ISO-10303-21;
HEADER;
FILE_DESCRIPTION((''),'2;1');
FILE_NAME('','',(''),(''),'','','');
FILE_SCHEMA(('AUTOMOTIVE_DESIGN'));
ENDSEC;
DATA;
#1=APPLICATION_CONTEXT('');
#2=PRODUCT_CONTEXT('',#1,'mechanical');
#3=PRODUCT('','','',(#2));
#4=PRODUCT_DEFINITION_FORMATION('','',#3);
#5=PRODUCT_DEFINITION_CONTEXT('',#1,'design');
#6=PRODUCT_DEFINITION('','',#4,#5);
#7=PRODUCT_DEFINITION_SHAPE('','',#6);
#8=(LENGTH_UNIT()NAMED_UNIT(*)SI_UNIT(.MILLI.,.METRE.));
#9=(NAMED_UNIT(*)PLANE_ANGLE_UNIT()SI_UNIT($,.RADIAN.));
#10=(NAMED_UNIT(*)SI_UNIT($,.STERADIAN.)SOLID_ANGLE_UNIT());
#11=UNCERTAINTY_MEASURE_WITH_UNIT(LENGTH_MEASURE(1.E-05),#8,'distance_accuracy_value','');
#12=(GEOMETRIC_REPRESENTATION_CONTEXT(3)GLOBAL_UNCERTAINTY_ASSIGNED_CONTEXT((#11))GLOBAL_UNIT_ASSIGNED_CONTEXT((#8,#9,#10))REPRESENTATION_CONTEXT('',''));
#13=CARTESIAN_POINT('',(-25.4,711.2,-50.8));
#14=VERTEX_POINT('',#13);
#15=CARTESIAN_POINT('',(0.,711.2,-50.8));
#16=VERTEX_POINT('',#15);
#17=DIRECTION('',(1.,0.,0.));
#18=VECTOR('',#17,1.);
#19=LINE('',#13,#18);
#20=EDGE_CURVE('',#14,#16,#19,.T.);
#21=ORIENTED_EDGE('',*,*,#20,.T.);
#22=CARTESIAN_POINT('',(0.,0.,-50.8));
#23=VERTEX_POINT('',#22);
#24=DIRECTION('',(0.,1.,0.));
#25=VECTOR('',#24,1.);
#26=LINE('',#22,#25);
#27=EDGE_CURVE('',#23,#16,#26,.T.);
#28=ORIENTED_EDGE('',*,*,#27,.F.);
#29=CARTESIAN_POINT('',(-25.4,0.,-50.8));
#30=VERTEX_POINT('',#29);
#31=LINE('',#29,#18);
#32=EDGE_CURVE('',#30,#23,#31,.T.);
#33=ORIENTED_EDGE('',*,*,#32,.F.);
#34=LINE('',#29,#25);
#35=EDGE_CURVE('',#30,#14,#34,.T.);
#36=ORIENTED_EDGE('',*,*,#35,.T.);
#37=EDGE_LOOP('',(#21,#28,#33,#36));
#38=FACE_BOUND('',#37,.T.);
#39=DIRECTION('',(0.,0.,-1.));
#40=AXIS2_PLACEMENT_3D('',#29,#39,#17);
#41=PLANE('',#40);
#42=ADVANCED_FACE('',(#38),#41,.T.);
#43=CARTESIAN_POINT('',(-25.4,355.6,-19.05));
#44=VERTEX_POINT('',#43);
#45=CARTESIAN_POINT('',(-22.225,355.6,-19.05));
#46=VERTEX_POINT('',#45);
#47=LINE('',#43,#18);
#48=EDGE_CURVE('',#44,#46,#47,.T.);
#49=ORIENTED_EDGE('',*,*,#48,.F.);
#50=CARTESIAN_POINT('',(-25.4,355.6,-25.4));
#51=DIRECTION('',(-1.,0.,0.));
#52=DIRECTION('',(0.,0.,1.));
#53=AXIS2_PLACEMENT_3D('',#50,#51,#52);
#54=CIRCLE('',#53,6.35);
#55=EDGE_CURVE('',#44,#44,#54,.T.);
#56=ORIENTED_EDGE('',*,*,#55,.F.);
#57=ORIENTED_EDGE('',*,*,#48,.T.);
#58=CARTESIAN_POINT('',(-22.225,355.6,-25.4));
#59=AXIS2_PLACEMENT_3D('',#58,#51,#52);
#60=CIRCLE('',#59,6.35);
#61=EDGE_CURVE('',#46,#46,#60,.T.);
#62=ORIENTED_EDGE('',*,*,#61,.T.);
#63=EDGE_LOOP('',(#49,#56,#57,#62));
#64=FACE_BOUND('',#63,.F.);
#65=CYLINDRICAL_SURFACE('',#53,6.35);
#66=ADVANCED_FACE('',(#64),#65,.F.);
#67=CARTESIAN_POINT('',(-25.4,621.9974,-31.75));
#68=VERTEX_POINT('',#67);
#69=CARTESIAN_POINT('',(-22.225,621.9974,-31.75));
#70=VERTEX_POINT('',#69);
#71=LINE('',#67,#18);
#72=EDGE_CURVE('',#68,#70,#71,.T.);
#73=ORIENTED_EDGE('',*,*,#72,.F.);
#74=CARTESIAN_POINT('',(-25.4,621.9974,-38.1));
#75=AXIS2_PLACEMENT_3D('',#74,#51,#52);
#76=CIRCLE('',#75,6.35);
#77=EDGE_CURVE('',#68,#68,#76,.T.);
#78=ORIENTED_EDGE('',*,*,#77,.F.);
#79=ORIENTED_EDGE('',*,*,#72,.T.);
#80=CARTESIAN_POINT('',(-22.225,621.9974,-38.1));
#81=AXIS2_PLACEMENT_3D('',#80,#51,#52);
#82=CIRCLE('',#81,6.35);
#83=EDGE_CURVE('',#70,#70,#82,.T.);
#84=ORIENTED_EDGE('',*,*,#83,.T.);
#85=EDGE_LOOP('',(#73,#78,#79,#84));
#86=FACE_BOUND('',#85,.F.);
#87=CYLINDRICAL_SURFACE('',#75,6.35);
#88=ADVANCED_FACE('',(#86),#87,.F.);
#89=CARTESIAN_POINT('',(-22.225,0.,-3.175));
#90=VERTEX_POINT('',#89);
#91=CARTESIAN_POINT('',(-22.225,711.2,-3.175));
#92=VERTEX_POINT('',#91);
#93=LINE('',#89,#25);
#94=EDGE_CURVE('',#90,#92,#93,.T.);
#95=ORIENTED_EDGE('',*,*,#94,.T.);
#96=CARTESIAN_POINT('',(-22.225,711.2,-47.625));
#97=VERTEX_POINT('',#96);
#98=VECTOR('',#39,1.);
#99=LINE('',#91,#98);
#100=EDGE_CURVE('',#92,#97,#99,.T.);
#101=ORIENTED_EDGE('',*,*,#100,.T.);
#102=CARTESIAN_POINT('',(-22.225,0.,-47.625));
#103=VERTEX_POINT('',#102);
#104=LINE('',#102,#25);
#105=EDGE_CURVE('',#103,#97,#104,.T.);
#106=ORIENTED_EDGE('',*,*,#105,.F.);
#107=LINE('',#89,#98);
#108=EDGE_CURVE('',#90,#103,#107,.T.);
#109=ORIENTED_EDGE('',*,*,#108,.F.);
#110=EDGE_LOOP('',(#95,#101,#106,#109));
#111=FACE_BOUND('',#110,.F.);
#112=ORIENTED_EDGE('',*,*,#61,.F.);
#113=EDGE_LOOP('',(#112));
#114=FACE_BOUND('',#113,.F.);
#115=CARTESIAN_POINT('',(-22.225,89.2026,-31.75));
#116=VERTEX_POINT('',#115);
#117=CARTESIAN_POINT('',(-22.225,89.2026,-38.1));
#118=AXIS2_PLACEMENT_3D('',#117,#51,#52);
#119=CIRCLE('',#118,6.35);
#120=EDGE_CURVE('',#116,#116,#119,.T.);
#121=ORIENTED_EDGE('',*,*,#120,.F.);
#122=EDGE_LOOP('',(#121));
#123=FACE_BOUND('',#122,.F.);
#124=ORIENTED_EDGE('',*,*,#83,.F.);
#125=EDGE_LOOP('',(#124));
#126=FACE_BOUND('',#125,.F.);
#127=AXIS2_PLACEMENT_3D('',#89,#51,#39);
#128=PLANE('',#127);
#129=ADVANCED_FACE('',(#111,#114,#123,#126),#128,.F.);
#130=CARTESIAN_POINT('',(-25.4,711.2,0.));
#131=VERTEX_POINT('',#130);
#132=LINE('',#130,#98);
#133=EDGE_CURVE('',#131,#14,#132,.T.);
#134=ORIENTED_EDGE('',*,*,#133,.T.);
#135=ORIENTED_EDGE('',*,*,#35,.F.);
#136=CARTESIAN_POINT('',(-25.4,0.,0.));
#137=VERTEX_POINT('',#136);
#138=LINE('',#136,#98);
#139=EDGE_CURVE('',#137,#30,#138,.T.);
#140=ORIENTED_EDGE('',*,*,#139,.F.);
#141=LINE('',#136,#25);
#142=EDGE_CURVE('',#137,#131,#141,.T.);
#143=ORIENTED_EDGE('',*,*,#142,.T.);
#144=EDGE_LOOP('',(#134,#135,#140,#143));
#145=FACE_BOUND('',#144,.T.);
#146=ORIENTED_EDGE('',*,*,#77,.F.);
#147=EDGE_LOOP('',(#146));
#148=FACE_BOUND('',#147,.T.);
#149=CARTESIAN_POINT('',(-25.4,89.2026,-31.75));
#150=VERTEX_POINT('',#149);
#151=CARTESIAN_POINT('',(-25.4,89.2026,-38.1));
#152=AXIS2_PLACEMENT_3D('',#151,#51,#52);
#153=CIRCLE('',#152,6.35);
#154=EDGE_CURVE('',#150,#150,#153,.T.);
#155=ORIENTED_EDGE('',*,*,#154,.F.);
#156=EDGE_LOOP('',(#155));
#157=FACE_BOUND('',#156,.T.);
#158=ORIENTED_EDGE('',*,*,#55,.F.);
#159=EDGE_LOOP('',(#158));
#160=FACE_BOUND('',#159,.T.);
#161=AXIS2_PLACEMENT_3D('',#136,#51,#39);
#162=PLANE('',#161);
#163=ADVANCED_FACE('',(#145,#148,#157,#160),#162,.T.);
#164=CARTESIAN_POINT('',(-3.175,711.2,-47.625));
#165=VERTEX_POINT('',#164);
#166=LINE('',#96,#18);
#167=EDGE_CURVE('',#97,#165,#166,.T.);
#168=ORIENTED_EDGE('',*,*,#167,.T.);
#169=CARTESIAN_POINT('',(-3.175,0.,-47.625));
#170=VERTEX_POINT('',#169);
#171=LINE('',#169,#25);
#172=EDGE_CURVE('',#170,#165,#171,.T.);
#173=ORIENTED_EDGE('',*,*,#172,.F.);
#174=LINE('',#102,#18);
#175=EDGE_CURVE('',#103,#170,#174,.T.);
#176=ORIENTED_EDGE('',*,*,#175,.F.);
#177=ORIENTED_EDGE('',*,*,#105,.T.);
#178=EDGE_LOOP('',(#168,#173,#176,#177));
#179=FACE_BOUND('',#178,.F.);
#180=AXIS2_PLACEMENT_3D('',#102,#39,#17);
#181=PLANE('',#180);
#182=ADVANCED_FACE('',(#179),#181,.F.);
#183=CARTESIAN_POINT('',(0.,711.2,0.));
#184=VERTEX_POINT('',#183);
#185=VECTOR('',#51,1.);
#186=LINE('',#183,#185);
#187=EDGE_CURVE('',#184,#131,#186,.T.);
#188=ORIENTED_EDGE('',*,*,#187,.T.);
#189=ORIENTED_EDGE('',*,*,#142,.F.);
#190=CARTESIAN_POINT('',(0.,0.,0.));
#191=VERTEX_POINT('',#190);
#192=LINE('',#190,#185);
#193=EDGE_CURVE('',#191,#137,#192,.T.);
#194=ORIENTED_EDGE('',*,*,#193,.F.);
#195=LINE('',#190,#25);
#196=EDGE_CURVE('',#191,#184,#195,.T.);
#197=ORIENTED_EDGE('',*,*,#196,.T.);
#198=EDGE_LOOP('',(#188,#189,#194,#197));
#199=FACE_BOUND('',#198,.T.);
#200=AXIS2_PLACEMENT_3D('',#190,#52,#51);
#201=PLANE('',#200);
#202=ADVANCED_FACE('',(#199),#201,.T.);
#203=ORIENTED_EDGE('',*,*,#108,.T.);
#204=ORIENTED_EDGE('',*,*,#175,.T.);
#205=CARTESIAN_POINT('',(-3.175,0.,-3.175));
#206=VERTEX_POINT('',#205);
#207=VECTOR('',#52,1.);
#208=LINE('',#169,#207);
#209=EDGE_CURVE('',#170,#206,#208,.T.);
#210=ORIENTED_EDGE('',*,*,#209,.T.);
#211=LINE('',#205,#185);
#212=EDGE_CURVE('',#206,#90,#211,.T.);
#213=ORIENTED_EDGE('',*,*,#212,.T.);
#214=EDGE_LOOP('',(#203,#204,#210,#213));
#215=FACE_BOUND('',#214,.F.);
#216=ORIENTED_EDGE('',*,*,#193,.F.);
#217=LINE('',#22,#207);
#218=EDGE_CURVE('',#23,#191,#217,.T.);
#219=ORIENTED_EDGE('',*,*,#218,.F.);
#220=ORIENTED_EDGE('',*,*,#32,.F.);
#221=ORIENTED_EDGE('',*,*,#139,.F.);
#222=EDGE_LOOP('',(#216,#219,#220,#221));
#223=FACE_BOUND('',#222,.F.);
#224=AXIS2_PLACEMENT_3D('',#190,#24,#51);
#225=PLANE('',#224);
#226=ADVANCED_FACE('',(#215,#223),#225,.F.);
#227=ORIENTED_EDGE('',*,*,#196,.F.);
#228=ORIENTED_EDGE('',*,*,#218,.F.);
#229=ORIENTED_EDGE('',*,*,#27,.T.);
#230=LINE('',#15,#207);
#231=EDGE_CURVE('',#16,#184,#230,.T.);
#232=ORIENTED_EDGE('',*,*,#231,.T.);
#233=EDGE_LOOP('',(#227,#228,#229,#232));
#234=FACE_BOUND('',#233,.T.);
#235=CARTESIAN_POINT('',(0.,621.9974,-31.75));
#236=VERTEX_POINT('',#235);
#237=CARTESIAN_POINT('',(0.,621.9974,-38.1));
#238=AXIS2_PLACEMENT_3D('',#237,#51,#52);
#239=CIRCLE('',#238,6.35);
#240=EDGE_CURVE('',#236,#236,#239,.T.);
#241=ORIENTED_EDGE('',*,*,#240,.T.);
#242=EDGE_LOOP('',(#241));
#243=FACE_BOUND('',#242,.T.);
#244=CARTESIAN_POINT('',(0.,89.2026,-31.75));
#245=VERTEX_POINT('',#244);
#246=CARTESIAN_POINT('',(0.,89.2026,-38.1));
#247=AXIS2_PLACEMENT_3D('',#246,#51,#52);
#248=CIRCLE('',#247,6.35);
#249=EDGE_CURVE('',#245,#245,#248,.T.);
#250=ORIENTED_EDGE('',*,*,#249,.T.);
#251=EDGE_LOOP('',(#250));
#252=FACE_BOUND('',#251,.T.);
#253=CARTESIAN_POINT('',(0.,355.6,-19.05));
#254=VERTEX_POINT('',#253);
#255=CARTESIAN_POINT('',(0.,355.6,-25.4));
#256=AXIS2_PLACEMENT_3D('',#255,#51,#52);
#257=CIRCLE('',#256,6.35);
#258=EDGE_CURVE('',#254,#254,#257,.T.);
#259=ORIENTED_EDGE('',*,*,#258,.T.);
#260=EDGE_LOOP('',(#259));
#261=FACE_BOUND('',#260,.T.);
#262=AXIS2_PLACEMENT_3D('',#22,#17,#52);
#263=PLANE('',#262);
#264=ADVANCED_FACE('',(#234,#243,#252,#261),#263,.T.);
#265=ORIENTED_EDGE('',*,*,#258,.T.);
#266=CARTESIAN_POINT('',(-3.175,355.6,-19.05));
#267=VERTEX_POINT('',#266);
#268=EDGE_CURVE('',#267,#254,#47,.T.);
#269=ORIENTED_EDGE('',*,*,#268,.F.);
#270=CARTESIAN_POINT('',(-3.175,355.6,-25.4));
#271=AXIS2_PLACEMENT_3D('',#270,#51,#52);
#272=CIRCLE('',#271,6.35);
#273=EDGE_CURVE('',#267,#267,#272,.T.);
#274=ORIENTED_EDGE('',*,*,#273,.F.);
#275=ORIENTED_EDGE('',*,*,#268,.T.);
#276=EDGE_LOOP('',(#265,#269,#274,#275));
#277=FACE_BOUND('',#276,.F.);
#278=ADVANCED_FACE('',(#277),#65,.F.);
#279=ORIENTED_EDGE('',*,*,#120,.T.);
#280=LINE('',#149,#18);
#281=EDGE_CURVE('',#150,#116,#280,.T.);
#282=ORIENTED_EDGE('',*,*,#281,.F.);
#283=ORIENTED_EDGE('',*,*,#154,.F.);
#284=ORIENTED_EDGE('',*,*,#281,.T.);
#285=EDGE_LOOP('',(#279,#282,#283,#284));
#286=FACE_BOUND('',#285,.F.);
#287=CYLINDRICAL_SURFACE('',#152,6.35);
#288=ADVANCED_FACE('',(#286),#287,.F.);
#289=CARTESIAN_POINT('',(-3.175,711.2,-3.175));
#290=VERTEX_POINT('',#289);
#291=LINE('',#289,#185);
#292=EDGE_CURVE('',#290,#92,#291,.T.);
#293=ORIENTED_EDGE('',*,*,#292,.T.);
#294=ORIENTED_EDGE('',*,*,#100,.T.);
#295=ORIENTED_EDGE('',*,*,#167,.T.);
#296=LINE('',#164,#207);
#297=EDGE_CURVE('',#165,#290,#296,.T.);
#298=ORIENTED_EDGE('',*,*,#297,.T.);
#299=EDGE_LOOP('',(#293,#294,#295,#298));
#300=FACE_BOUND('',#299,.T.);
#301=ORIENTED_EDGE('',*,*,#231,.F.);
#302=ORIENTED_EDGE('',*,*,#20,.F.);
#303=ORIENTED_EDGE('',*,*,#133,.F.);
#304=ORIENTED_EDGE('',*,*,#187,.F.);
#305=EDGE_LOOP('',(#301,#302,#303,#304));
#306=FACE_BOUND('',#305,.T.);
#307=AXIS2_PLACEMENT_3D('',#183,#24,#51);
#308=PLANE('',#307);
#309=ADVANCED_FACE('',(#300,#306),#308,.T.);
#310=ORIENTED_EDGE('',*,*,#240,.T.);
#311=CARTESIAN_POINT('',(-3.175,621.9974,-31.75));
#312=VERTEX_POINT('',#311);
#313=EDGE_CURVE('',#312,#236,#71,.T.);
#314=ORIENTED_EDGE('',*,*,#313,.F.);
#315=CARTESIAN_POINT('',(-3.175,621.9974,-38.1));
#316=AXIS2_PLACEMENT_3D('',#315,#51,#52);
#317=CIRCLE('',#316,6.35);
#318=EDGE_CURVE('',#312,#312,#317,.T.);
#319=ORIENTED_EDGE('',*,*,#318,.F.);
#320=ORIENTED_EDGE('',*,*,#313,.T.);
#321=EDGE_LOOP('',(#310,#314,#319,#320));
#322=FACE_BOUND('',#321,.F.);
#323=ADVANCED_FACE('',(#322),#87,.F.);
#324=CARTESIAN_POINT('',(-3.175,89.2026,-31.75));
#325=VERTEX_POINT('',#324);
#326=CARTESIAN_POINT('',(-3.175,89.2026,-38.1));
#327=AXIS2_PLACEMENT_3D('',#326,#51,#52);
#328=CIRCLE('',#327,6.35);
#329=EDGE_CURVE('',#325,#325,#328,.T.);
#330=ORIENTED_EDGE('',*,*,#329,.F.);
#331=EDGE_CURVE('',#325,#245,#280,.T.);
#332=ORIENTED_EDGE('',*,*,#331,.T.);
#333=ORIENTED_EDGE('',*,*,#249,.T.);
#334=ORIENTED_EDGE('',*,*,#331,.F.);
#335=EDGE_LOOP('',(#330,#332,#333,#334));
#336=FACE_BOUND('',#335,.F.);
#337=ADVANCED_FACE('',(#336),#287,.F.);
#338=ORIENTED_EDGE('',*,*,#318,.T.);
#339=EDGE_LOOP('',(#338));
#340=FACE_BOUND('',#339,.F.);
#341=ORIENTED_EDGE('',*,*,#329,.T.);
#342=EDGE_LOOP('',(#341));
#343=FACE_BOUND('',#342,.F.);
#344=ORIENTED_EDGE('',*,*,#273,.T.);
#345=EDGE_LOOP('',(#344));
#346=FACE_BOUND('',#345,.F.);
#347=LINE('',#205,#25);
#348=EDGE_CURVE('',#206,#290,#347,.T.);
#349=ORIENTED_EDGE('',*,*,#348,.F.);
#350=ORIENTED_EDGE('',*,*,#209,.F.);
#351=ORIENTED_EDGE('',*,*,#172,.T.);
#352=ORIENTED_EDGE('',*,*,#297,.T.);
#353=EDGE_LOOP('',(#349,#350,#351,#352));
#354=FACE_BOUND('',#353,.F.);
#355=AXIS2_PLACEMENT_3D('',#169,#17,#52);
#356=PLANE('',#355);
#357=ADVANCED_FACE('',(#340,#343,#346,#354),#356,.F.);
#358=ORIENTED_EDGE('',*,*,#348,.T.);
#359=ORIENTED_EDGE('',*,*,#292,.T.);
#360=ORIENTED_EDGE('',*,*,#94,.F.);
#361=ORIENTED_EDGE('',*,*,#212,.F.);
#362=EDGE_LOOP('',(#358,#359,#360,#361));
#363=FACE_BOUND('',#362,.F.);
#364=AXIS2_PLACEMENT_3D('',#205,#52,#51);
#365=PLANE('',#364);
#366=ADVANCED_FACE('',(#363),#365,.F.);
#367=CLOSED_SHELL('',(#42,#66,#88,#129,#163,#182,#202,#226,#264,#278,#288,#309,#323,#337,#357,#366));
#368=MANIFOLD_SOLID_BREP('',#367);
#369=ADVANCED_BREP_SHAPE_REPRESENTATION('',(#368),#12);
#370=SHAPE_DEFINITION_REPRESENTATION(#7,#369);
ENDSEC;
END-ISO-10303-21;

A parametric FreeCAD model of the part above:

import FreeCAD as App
import Part
import Sketcher
Q = App.Units.Quantity

doc = App.newDocument("Part")
body = doc.addObject("PartDesign::Body", "Body")

sketch1 = body.newObject("Sketcher::SketchObject", "Sketch")
sketch1.AttachmentSupport = (doc.getObject("XZ_Plane"), [""])
sketch1.MapMode = "FlatFace"
sketch1.addGeometry([
    Part.LineSegment(App.Vector(-25, 0, 0), App.Vector(0, 0, 0)),
    Part.LineSegment(App.Vector(0, 0, 0), App.Vector(0, -51, 0)),
    Part.LineSegment(App.Vector(0, -51, 0), App.Vector(-25, -51, 0)),
    Part.LineSegment(App.Vector(-25, -51, 0), App.Vector(-25, 0, 0)),
    Part.LineSegment(App.Vector(-3, -48, 0), App.Vector(-3, -3, 0)),
    Part.LineSegment(App.Vector(-3, -3, 0), App.Vector(-22, -3, 0)),
    Part.LineSegment(App.Vector(-22, -3, 0), App.Vector(-22, -48, 0)),
    Part.LineSegment(App.Vector(-22, -48, 0), App.Vector(-3, -48, 0)),
], False)
sketch1.addConstraint([
    Sketcher.Constraint("Coincident", 0, 2, 1, 1),
    Sketcher.Constraint("Coincident", 1, 2, 2, 1),
    Sketcher.Constraint("Coincident", 2, 2, 3, 1),
    Sketcher.Constraint("Coincident", 3, 2, 0, 1),
    Sketcher.Constraint("Coincident", 4, 2, 5, 1),
    Sketcher.Constraint("Coincident", 5, 2, 6, 1),
    Sketcher.Constraint("Coincident", 6, 2, 7, 1),
    Sketcher.Constraint("Coincident", 7, 2, 4, 1),
    Sketcher.Constraint("Horizontal", 0),
    Sketcher.Constraint("Vertical", 1),
    Sketcher.Constraint("Horizontal", 2),
    Sketcher.Constraint("Vertical", 3),
    Sketcher.Constraint("Vertical", 4),
    Sketcher.Constraint("Horizontal", 5),
    Sketcher.Constraint("Vertical", 6),
    Sketcher.Constraint("Horizontal", 7),
    Sketcher.Constraint("Coincident", 0, 2, -1, 1),
    Sketcher.Constraint("DistanceX", 0, 1, 0, 2, Q("1 in")),
    Sketcher.Constraint("DistanceY", 1, 2, 1, 1, Q("2 in")),
    Sketcher.Constraint("DistanceX", 4, 2, -1, 1, Q("0.125 in")),
    Sketcher.Constraint("DistanceY", 4, 2, -1, 1, Q("0.125 in")),
    Sketcher.Constraint("DistanceX", 3, 2, 5, 2, Q("0.125 in")),
    Sketcher.Constraint("DistanceY", 2, 2, 6, 2, Q("0.125 in")),
])
pad1 = body.newObject("PartDesign::Pad", "Pad")
pad1.Profile = sketch1
pad1.Length = Q("28 in")
pad1.Reversed = True

sketch2 = body.newObject("Sketcher::SketchObject", "Sketch001")
sketch2.AttachmentSupport = (doc.getObject("YZ_Plane"), [""])
sketch2.MapMode = "FlatFace"
sketch2.AttachmentOffset = App.Placement(App.Vector(0, 0, -1 * 25.4), App.Rotation())
sketch2.addGeometry([
    Part.Circle(App.Vector(356, -25, 0), App.Vector(0, 0, 1), 6),
    Part.Circle(App.Vector(622, -38, 0), App.Vector(0, 0, 1), 6),
    Part.Circle(App.Vector(89, -38, 0), App.Vector(0, 0, 1), 6),
], False)
sketch2.addConstraint([
    Sketcher.Constraint("Equal", 0, 1),
    Sketcher.Constraint("Equal", 1, 2),
    Sketcher.Constraint("Horizontal", 1, 3, 2, 3),
    Sketcher.Constraint("Diameter", 0, Q("0.5 in")),
    Sketcher.Constraint("DistanceX", -1, 1, 0, 3, Q("14 in")),
    Sketcher.Constraint("DistanceY", 0, 3, -1, 1, Q("1 in")),
    Sketcher.Constraint("DistanceY", 1, 3, -1, 1, Q("1.5 in")),
    Sketcher.Constraint("DistanceX", -1, 1, 1, 3, Q("621.9974 mm")),
    Sketcher.Constraint("DistanceX", -1, 1, 2, 3, Q("89.2026 mm")),
])
pocket1 = body.newObject("PartDesign::Pocket", "Pocket")
pocket1.Profile = sketch2
pocket1.Length = Q("1 in")
pocket1.Reversed = True

doc.recompute()
